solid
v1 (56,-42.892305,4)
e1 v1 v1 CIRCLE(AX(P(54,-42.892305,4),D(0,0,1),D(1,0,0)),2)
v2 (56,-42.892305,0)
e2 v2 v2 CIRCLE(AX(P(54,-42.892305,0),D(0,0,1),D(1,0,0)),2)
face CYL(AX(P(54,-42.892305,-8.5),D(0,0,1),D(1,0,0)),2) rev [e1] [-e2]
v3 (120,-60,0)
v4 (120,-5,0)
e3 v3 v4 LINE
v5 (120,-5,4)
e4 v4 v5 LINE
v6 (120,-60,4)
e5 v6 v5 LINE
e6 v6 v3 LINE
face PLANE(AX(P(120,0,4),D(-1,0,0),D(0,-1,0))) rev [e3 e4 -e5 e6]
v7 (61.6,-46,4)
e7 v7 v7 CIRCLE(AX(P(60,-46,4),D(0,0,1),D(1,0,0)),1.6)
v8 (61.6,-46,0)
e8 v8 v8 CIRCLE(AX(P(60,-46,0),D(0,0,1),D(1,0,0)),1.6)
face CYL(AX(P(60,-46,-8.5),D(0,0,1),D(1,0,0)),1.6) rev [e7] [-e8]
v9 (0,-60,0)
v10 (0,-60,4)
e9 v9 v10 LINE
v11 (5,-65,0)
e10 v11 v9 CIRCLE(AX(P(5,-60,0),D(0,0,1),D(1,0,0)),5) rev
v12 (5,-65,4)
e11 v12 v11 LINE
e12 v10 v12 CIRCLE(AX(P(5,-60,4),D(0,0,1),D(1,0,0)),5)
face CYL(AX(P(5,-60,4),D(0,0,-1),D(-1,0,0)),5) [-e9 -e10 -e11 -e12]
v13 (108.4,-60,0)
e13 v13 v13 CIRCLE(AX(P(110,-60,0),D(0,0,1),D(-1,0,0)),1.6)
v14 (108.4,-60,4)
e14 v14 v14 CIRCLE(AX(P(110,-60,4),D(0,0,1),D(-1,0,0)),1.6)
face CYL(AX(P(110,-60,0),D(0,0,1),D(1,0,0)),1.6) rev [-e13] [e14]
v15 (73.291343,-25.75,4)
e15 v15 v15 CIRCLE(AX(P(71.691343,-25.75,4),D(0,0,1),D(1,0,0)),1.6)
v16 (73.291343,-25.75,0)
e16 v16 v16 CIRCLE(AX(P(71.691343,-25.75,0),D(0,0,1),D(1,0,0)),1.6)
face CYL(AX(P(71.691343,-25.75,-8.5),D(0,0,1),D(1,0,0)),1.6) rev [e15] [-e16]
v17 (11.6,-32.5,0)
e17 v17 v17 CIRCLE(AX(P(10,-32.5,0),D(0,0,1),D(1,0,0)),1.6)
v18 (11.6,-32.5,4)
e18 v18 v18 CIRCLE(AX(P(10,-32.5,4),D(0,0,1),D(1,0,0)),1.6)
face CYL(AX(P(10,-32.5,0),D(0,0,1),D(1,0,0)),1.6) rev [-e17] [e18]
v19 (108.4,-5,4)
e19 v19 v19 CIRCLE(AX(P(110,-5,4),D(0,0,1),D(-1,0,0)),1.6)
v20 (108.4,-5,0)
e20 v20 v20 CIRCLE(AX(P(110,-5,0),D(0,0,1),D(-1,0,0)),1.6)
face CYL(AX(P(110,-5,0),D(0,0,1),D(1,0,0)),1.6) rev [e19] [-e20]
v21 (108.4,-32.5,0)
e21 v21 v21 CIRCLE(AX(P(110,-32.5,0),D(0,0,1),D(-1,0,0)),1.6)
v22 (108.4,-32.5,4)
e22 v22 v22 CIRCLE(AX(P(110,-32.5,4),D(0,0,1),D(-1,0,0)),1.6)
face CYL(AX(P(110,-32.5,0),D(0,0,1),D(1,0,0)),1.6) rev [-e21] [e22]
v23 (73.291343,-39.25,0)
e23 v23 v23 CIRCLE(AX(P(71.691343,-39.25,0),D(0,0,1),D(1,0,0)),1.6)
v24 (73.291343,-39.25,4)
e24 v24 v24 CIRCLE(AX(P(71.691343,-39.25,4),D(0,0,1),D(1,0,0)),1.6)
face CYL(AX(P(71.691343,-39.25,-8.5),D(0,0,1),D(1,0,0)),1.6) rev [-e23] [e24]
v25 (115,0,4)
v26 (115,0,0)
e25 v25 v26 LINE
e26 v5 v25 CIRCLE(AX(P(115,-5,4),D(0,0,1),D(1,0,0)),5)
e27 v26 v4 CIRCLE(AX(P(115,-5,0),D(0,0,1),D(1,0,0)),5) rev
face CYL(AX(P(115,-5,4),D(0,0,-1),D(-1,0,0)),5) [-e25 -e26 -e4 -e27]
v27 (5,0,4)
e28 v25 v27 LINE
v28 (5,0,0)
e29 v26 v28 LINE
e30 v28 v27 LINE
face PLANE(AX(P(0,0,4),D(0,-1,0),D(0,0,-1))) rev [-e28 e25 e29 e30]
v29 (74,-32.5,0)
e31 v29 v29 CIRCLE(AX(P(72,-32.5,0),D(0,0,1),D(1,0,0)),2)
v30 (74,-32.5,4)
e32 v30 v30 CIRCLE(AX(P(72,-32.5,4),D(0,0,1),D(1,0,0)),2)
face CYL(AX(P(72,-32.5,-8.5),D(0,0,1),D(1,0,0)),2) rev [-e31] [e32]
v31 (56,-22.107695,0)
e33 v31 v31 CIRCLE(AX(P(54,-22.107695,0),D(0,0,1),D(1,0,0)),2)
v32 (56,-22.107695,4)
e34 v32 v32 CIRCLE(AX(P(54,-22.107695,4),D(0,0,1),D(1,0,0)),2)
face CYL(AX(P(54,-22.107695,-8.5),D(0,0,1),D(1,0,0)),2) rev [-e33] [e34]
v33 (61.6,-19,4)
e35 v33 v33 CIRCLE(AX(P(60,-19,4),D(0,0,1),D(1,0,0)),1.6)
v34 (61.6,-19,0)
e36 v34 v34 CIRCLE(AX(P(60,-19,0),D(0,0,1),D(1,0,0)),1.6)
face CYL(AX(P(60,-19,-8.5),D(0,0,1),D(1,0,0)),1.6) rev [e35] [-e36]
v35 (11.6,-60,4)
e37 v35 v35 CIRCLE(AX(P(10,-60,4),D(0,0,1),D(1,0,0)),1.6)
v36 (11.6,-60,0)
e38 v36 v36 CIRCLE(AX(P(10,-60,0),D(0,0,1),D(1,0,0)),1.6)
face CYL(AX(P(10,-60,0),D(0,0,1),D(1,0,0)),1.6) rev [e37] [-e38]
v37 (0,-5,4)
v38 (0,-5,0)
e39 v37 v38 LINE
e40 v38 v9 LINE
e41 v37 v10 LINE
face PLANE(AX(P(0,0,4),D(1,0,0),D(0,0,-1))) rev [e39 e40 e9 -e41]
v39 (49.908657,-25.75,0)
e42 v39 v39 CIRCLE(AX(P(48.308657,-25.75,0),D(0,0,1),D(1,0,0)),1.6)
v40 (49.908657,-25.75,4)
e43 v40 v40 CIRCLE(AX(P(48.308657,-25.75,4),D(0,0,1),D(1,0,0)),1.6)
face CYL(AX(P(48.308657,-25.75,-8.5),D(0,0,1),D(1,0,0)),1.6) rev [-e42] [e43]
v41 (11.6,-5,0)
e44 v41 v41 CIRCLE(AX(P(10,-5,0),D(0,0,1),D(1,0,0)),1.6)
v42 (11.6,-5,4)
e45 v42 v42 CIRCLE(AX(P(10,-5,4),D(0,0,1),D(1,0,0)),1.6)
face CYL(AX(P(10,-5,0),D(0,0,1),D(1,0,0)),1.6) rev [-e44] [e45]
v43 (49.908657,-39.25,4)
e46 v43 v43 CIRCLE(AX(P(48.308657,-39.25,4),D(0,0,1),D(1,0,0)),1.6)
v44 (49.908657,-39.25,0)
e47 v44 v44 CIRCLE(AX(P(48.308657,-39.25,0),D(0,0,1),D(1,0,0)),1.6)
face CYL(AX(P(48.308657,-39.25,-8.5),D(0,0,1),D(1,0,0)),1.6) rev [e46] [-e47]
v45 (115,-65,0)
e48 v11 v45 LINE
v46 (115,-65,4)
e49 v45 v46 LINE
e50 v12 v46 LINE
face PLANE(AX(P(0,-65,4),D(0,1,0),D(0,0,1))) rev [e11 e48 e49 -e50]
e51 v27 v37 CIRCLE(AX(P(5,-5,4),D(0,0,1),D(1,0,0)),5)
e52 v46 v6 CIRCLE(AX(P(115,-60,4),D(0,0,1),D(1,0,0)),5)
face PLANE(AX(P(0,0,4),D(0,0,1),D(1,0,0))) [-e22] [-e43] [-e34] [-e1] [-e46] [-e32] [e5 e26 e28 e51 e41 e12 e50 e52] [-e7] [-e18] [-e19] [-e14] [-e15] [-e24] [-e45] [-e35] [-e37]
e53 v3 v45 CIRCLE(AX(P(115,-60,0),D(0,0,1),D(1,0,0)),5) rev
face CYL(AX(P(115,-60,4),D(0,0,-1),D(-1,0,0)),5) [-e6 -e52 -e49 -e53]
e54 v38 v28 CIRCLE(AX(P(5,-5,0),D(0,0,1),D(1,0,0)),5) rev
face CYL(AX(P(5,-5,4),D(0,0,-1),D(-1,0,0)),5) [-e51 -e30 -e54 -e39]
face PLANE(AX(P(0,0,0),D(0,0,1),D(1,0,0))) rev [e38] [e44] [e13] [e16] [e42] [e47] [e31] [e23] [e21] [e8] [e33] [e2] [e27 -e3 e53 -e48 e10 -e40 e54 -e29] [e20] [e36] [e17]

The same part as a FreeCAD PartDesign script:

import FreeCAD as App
import Part
import Sketcher
from FreeCAD import Vector


def edges_at(feature, points):
    """Names of the edges that pass closest to the given points."""
    edges = feature.Shape.Edges
    near = lambda p: min(range(len(edges)), key=lambda i: edges[i].distToShape(Part.Vertex(*p))[0])
    return sorted({f"Edge{near(p) + 1}" for p in points})


def add_polygon(sketch, points):
    """Adds a closed chain of lines whose ends are joined by coincident constraints."""
    first, n = sketch.GeometryCount, len(points)
    for a, b in zip(points, points[1:] + points[:1]):
        sketch.addGeometry(Part.LineSegment(App.Vector(*a, 0), App.Vector(*b, 0)), False)
    for i in range(n):
        sketch.addConstraint(Sketcher.Constraint("Coincident", first + i, 2, first + (i + 1) % n, 1))

doc = App.newDocument("Part")
params = doc.addObject("Spreadsheet::Sheet", "Params")
for row, (alias, value) in enumerate([
    ("sketch1_width", "120 mm"),
    ("sketch1_height", "65 mm"),
    ("pad1_length", "4 mm"),
    ("sketch2_diameter", "3.2 mm"),
    ("fillet_radius", "5 mm"),
    ("sketch3_diameter", "4 mm"),
    ("sketch3_diameter2", "3.2 mm"),
    ("pocket2_length", "12.5 mm"),
], start=1):
    params.set(f"A{row}", alias)
    params.set(f"B{row}", "=" + value)
    params.setAlias(f"B{row}", alias)

body = doc.addObject("PartDesign::Body", "Body")

sketch1 = body.newObject("Sketcher::SketchObject", "Sketch")
sketch1.AttachmentSupport = (doc.getObject("XY_Plane"), [""])
sketch1.MapMode = "FlatFace"
add_polygon(sketch1, [(0, 0), (0, -65), (120, -65), (120, 0)])
sketch1.addConstraint(Sketcher.Constraint("Vertical", 0))
sketch1.addConstraint(Sketcher.Constraint("Horizontal", 1))
sketch1.addConstraint(Sketcher.Constraint("Vertical", 2))
sketch1.addConstraint(Sketcher.Constraint("Horizontal", 3))
sketch1.addConstraint(Sketcher.Constraint("Coincident", 3, 2, -1, 1))
sketch1.addConstraint(Sketcher.Constraint("DistanceX", 1, 1, 1, 2, 120.0))
sketch1.addConstraint(Sketcher.Constraint("DistanceY", 0, 2, 0, 1, 65.0))
sketch1.setExpression("Constraints[9]", "Params.sketch1_width")
sketch1.setExpression("Constraints[10]", "Params.sketch1_height")
pad1 = body.newObject("PartDesign::Pad", "Pad")
pad1.Profile = sketch1
pad1.setExpression("Length", "Params.pad1_length")

sketch2 = body.newObject("Sketcher::SketchObject", "Sketch001")
sketch2.AttachmentSupport = (doc.getObject("XY_Plane"), [""])
sketch2.MapMode = "FlatFace"
sketch2.AttachmentOffset = App.Placement(Vector(0, 0, 4), App.Rotation())
sketch2.addGeometry(Part.Circle(Vector(10, -5, 0), Vector(0, 0, 1), 1.6), False)
sketch2.addGeometry(Part.Circle(Vector(10, -32.5, 0), Vector(0, 0, 1), 1.6), False)
sketch2.addGeometry(Part.Circle(Vector(10, -60, 0), Vector(0, 0, 1), 1.6), False)
sketch2.addGeometry(Part.Circle(Vector(110, -60, 0), Vector(0, 0, 1), 1.6), False)
sketch2.addGeometry(Part.Circle(Vector(110, -32.5, 0), Vector(0, 0, 1), 1.6), False)
sketch2.addGeometry(Part.Circle(Vector(110, -5, 0), Vector(0, 0, 1), 1.6), False)
sketch2.addConstraint(Sketcher.Constraint("Equal", 0, 1))
sketch2.addConstraint(Sketcher.Constraint("Equal", 1, 2))
sketch2.addConstraint(Sketcher.Constraint("Equal", 2, 3))
sketch2.addConstraint(Sketcher.Constraint("Equal", 3, 4))
sketch2.addConstraint(Sketcher.Constraint("Equal", 4, 5))
sketch2.addConstraint(Sketcher.Constraint("Horizontal", 2, 3, 3, 3))
sketch2.addConstraint(Sketcher.Constraint("Horizontal", 1, 3, 4, 3))
sketch2.addConstraint(Sketcher.Constraint("Horizontal", 0, 3, 5, 3))
sketch2.addConstraint(Sketcher.Constraint("Vertical", 0, 3, 1, 3))
sketch2.addConstraint(Sketcher.Constraint("Vertical", 1, 3, 2, 3))
sketch2.addConstraint(Sketcher.Constraint("Vertical", 3, 3, 4, 3))
sketch2.addConstraint(Sketcher.Constraint("Vertical", 4, 3, 5, 3))
sketch2.addConstraint(Sketcher.Constraint("Diameter", 0, 3.2))
sketch2.addConstraint(Sketcher.Constraint("DistanceX", -1, 1, 0, 3, 10.0))
sketch2.addConstraint(Sketcher.Constraint("DistanceY", 0, 3, -1, 1, 5.0))
sketch2.addConstraint(Sketcher.Constraint("DistanceY", 2, 3, -1, 1, 60.0))
sketch2.addConstraint(Sketcher.Constraint("DistanceX", -1, 1, 3, 3, 110.0))
sketch2.addConstraint(Sketcher.Constraint("DistanceY", 1, 3, -1, 1, 32.5))
sketch2.setExpression("Constraints[12]", "Params.sketch2_diameter")
pocket1 = body.newObject("PartDesign::Pocket", "Pocket")
pocket1.Profile = sketch2
pocket1.Type = "ThroughAll"
doc.recompute()

fillet = body.newObject("PartDesign::Fillet", "Fillet")
fillet.Base = (pocket1, edges_at(pocket1, [
    (0, 0, 2),
    (120, 0, 2),
    (120, -65, 2),
    (0, -65, 2),
]))
fillet.setExpression("Radius", "Params.fillet_radius")

sketch3 = body.newObject("Sketcher::SketchObject", "Sketch002")
sketch3.AttachmentSupport = (doc.getObject("XY_Plane"), [""])
sketch3.MapMode = "FlatFace"
sketch3.AttachmentOffset = App.Placement(Vector(0, 0, 4), App.Rotation())
sketch3.addGeometry(Part.Circle(Vector(72, -32.5, 0), Vector(0, 0, 1), 2), False)
sketch3.addGeometry(Part.Circle(Vector(60, -19, 0), Vector(0, 0, 1), 1.6), False)
sketch3.addGeometry(Part.Circle(Vector(71.7, -25.8, 0), Vector(0, 0, 1), 1.6), False)
sketch3.addGeometry(Part.Circle(Vector(71.7, -39.2, 0), Vector(0, 0, 1), 1.6), False)
sketch3.addGeometry(Part.Circle(Vector(60, -46, 0), Vector(0, 0, 1), 1.6), False)
sketch3.addGeometry(Part.Circle(Vector(48.3, -39.2, 0), Vector(0, 0, 1), 1.6), False)
sketch3.addGeometry(Part.Circle(Vector(48.3, -25.8, 0), Vector(0, 0, 1), 1.6), False)
sketch3.addGeometry(Part.Circle(Vector(54, -42.9, 0), Vector(0, 0, 1), 2), False)
sketch3.addGeometry(Part.Circle(Vector(54, -22.1, 0), Vector(0, 0, 1), 2), False)
sketch3.addConstraint(Sketcher.Constraint("Equal", 1, 2))
sketch3.addConstraint(Sketcher.Constraint("Equal", 2, 3))
sketch3.addConstraint(Sketcher.Constraint("Equal", 3, 4))
sketch3.addConstraint(Sketcher.Constraint("Equal", 4, 5))
sketch3.addConstraint(Sketcher.Constraint("Equal", 5, 6))
sketch3.addConstraint(Sketcher.Constraint("Equal", 0, 7))
sketch3.addConstraint(Sketcher.Constraint("Equal", 7, 8))
sketch3.addConstraint(Sketcher.Constraint("Horizontal", 3, 3, 5, 3))
sketch3.addConstraint(Sketcher.Constraint("Horizontal", 2, 3, 6, 3))
sketch3.addConstraint(Sketcher.Constraint("Vertical", 2, 3, 3, 3))
sketch3.addConstraint(Sketcher.Constraint("Vertical", 1, 3, 4, 3))
sketch3.addConstraint(Sketcher.Constraint("Vertical", 5, 3, 6, 3))
sketch3.addConstraint(Sketcher.Constraint("Vertical", 7, 3, 8, 3))
sketch3.addConstraint(Sketcher.Constraint("Diameter", 0, 4.0))
sketch3.addConstraint(Sketcher.Constraint("Diameter", 1, 3.2))
sketch3.addConstraint(Sketcher.Constraint("DistanceX", -1, 1, 0, 3, 72.0))
sketch3.addConstraint(Sketcher.Constraint("DistanceX", -1, 1, 1, 3, 60.0))
sketch3.addConstraint(Sketcher.Constraint("DistanceY", 1, 3, -1, 1, 19.0))
sketch3.addConstraint(Sketcher.Constraint("DistanceY", 4, 3, -1, 1, 46.0))
sketch3.addConstraint(Sketcher.Constraint("DistanceX", -1, 1, 7, 3, 54.0))
sketch3.addConstraint(Sketcher.Constraint("DistanceY", 0, 3, -1, 1, 32.5))
sketch3.addConstraint(Sketcher.Constraint("DistanceY", 3, 3, 2, 3, 13.5))
sketch3.addConstraint(Sketcher.Constraint("DistanceY", 2, 3, -1, 1, 25.75))
sketch3.addConstraint(Sketcher.Constraint("DistanceY", 7, 3, 8, 3, 20.78461))
sketch3.addConstraint(Sketcher.Constraint("DistanceX", -1, 1, 2, 3, 71.691343))
sketch3.addConstraint(Sketcher.Constraint("DistanceX", -1, 1, 5, 3, 48.308657))
sketch3.addConstraint(Sketcher.Constraint("DistanceY", 7, 3, -1, 1, 42.892305))
sketch3.setExpression("Constraints[13]", "Params.sketch3_diameter")
sketch3.setExpression("Constraints[14]", "Params.sketch3_diameter2")
pocket2 = body.newObject("PartDesign::Pocket", "Pocket001")
pocket2.Profile = sketch3
pocket2.setExpression("Length", "Params.pocket2_length")

doc.recompute()
